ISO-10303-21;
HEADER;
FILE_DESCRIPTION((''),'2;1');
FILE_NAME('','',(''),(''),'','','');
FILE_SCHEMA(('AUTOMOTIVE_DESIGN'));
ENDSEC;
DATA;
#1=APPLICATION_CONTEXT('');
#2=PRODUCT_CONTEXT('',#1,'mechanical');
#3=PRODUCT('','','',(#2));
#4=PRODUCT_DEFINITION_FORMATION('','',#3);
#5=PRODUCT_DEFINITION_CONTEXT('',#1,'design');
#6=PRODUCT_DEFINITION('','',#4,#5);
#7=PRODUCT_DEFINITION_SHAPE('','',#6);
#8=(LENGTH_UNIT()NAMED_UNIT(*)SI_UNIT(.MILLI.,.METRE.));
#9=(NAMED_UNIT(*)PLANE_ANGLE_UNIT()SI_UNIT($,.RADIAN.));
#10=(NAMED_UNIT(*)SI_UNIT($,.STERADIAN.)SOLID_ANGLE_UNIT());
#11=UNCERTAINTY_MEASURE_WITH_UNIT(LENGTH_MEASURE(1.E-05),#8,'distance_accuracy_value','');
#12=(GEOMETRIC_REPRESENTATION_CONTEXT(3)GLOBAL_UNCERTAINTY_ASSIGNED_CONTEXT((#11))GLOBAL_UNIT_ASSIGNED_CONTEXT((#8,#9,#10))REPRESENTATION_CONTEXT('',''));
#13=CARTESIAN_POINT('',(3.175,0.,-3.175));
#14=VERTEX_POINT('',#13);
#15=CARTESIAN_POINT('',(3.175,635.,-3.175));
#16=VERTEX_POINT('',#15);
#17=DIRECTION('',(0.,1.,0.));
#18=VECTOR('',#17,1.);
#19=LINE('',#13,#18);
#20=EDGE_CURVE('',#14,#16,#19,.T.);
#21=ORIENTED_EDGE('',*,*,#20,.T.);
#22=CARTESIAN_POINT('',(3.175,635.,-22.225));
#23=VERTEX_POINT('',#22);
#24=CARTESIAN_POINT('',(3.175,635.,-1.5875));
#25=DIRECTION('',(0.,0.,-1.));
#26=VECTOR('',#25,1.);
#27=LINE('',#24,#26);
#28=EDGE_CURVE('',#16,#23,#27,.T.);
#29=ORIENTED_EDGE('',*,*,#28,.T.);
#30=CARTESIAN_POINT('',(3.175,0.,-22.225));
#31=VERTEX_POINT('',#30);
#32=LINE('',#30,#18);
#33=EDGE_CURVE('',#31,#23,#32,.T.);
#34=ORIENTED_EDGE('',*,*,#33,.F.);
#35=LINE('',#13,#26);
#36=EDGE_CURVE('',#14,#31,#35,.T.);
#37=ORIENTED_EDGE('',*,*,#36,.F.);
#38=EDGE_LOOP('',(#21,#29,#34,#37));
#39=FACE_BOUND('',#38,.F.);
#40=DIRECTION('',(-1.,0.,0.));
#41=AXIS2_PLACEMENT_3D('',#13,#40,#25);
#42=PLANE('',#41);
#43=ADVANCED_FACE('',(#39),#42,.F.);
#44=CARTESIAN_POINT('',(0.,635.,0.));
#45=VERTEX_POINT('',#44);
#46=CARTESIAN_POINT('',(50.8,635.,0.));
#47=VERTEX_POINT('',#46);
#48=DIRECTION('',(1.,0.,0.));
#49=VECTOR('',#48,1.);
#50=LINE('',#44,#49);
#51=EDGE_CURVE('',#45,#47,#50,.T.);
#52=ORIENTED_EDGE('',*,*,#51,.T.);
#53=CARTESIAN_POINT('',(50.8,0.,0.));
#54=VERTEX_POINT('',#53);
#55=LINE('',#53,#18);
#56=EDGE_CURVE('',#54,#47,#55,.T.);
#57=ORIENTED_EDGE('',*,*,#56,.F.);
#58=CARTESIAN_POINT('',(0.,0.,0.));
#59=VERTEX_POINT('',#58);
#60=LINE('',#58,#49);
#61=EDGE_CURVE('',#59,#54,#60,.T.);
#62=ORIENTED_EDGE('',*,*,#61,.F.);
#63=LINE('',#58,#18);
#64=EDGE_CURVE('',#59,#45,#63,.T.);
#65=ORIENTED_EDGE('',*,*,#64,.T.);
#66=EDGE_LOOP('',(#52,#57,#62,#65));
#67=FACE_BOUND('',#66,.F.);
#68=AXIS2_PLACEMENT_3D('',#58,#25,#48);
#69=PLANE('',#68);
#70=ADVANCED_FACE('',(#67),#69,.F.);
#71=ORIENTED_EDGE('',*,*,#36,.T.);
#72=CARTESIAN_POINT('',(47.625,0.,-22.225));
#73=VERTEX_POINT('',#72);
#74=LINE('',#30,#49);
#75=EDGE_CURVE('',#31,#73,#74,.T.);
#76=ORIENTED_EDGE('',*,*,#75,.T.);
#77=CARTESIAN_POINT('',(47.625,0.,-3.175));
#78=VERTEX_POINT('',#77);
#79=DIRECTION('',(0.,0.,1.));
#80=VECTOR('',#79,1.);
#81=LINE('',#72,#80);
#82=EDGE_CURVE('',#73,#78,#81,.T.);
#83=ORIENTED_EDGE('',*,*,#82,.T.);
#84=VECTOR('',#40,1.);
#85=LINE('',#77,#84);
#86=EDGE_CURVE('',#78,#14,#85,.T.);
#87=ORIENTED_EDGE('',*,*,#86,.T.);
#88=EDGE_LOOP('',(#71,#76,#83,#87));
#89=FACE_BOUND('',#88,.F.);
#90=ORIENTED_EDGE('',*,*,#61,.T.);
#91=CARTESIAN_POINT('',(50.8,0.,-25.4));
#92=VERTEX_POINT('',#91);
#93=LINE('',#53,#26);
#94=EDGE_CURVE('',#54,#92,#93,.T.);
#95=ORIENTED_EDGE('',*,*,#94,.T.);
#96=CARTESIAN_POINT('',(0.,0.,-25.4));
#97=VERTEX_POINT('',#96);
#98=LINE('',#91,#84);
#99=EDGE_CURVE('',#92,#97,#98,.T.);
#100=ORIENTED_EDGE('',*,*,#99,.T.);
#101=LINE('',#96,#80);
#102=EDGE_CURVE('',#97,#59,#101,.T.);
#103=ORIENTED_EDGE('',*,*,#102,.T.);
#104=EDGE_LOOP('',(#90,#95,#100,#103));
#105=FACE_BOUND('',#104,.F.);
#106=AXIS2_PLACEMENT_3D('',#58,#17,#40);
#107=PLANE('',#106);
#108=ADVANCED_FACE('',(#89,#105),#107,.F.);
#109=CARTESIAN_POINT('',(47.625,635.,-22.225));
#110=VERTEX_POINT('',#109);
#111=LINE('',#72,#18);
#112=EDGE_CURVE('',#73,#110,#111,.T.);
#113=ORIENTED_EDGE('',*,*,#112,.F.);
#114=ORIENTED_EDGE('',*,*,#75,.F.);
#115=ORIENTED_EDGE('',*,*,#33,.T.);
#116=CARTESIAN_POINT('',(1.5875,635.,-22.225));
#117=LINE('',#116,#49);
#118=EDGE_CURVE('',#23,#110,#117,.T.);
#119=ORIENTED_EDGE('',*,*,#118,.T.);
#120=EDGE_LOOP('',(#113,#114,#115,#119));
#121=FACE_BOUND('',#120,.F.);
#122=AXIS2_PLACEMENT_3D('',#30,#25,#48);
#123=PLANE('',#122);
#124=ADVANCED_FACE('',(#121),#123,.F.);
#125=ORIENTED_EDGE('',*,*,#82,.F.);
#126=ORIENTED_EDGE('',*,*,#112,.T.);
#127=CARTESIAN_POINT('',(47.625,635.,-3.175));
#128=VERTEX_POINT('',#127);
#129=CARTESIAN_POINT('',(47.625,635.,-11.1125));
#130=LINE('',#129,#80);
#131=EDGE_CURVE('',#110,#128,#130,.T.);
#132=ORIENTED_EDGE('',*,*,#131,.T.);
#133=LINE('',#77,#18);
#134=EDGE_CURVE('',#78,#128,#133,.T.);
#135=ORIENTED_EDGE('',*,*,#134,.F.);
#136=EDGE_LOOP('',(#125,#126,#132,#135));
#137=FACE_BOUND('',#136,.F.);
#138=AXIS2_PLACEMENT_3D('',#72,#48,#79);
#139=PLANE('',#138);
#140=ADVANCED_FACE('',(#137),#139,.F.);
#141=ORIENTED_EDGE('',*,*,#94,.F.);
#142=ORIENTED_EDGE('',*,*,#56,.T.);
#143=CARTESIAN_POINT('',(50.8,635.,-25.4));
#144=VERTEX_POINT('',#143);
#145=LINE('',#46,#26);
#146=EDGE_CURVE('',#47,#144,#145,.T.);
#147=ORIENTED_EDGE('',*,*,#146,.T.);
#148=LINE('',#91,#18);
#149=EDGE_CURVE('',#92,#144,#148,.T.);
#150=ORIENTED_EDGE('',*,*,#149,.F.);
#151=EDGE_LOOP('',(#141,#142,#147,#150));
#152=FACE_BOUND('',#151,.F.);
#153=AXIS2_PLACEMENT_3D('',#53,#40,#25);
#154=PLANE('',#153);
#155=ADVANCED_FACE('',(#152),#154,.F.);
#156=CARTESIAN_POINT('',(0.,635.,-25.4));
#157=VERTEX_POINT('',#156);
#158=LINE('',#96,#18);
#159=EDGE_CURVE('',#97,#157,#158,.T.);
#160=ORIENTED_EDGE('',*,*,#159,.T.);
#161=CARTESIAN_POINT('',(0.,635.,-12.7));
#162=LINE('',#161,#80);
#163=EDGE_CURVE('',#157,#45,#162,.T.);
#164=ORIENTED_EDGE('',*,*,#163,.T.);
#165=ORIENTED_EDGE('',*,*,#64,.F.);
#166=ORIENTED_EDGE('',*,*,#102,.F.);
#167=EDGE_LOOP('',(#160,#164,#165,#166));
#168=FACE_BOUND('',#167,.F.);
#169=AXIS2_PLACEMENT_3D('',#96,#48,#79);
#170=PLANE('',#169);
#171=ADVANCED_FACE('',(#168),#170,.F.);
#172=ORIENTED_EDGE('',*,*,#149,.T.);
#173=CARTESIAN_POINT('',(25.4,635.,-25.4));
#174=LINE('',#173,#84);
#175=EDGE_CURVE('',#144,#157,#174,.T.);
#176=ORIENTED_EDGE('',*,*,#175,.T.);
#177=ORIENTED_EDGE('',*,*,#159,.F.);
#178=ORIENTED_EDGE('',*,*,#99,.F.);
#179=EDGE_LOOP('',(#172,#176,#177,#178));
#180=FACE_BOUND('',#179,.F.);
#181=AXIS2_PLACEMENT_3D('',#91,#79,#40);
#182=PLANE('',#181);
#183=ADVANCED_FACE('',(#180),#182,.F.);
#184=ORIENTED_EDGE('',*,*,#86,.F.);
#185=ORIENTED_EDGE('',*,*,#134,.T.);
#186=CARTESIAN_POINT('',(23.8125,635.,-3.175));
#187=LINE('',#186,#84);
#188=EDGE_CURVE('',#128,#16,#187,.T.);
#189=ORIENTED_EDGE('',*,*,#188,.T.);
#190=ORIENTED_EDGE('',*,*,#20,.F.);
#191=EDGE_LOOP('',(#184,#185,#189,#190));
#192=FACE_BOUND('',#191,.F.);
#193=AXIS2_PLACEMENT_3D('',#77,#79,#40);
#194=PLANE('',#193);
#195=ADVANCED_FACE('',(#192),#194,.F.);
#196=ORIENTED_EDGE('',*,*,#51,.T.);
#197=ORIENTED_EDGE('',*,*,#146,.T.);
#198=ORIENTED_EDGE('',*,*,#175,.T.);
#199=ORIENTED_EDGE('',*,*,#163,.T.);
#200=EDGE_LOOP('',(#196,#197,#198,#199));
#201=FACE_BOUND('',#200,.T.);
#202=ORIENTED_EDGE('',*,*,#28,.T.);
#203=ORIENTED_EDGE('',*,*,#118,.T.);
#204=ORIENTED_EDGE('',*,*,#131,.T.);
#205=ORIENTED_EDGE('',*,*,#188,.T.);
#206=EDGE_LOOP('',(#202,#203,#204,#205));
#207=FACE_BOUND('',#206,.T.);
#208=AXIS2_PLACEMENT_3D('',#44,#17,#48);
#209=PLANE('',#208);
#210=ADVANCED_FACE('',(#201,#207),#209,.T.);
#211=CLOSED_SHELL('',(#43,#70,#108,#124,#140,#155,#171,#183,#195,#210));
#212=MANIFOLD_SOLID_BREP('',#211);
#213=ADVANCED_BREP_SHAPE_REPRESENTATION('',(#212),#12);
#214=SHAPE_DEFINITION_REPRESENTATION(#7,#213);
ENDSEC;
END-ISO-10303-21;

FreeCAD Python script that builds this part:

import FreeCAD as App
import Part
import Sketcher
from FreeCAD import Vector
Q = App.Units.Quantity

doc = App.newDocument("Part")
body = doc.addObject("PartDesign::Body", "Body")

# Sketch on XZ plane
sketch1 = body.newObject("Sketcher::SketchObject", "Sketch")
sketch1.AttachmentSupport = (doc.getObject("XZ_Plane"), [""])
sketch1.MapMode = "FlatFace"
sketch1.addGeometry(Part.LineSegment(Vector(0, -25, 0), Vector(0, 0, 0)), False)
sketch1.addGeometry(Part.LineSegment(Vector(0, 0, 0), Vector(51, 0, 0)), False)
sketch1.addGeometry(Part.LineSegment(Vector(51, 0, 0), Vector(51, -25, 0)), False)
sketch1.addGeometry(Part.LineSegment(Vector(51, -25, 0), Vector(0, -25, 0)), False)
sketch1.addGeometry(Part.LineSegment(Vector(3, -3, 0), Vector(3, -22, 0)), False)
sketch1.addGeometry(Part.LineSegment(Vector(3, -22, 0), Vector(48, -22, 0)), False)
sketch1.addGeometry(Part.LineSegment(Vector(48, -22, 0), Vector(48, -3, 0)), False)
sketch1.addGeometry(Part.LineSegment(Vector(48, -3, 0), Vector(3, -3, 0)), False)
sketch1.addConstraint(Sketcher.Constraint("Coincident", 0, 2, 1, 1))
sketch1.addConstraint(Sketcher.Constraint("Coincident", 1, 2, 2, 1))
sketch1.addConstraint(Sketcher.Constraint("Coincident", 2, 2, 3, 1))
sketch1.addConstraint(Sketcher.Constraint("Coincident", 3, 2, 0, 1))
sketch1.addConstraint(Sketcher.Constraint("Coincident", 4, 2, 5, 1))
sketch1.addConstraint(Sketcher.Constraint("Coincident", 5, 2, 6, 1))
sketch1.addConstraint(Sketcher.Constraint("Coincident", 6, 2, 7, 1))
sketch1.addConstraint(Sketcher.Constraint("Coincident", 7, 2, 4, 1))
sketch1.addConstraint(Sketcher.Constraint("Vertical", 0))
sketch1.addConstraint(Sketcher.Constraint("Horizontal", 1))
sketch1.addConstraint(Sketcher.Constraint("Vertical", 2))
sketch1.addConstraint(Sketcher.Constraint("Horizontal", 3))
sketch1.addConstraint(Sketcher.Constraint("Vertical", 4))
sketch1.addConstraint(Sketcher.Constraint("Horizontal", 5))
sketch1.addConstraint(Sketcher.Constraint("Vertical", 6))
sketch1.addConstraint(Sketcher.Constraint("Horizontal", 7))
sketch1.addConstraint(Sketcher.Constraint("Coincident", 0, 2, -1, 1))
sketch1.addConstraint(Sketcher.Constraint("DistanceX", 1, 1, 1, 2, Q("2 in")))
sketch1.addConstraint(Sketcher.Constraint("DistanceY", 0, 1, 0, 2, Q("1 in")))
sketch1.addConstraint(Sketcher.Constraint("DistanceX", -1, 1, 4, 2, Q("0.125 in")))
sketch1.addConstraint(Sketcher.Constraint("DistanceY", 6, 2, -1, 1, Q("0.125 in")))
sketch1.addConstraint(Sketcher.Constraint("DistanceY", 3, 2, 4, 2, Q("0.125 in")))
sketch1.addConstraint(Sketcher.Constraint("DistanceX", 5, 2, 2, 2, Q("0.125 in")))
pad1 = body.newObject("PartDesign::Pad", "Pad")
pad1.Profile = sketch1
pad1.Length = Q("29 in")
pad1.Reversed = True

# Sketch on XZ plane
sketch2 = body.newObject("Sketcher::SketchObject", "Sketch001")
sketch2.AttachmentSupport = (doc.getObject("XZ_Plane"), [""])
sketch2.MapMode = "FlatFace"
sketch2.AttachmentOffset = App.Placement(Vector(0, 0, -29 * 25.4), App.Rotation())
sketch2.addGeometry(Part.LineSegment(Vector(107, -46, 0), Vector(-33, -46, 0)), False)
sketch2.addGeometry(Part.LineSegment(Vector(-33, -46, 0), Vector(-33, 27, 0)), False)
sketch2.addGeometry(Part.LineSegment(Vector(-33, 27, 0), Vector(107, 27, 0)), False)
sketch2.addGeometry(Part.LineSegment(Vector(107, 27, 0), Vector(107, -46, 0)), False)
sketch2.addConstraint(Sketcher.Constraint("Coincident", 0, 2, 1, 1))
sketch2.addConstraint(Sketcher.Constraint("Coincident", 1, 2, 2, 1))
sketch2.addConstraint(Sketcher.Constraint("Coincident", 2, 2, 3, 1))
sketch2.addConstraint(Sketcher.Constraint("Coincident", 3, 2, 0, 1))
sketch2.addConstraint(Sketcher.Constraint("Horizontal", 0))
sketch2.addConstraint(Sketcher.Constraint("Vertical", 1))
sketch2.addConstraint(Sketcher.Constraint("Horizontal", 2))
sketch2.addConstraint(Sketcher.Constraint("Vertical", 3))
sketch2.addConstraint(Sketcher.Constraint("DistanceX", 0, 2, 0, 1, Q("5.5125 in")))
sketch2.addConstraint(Sketcher.Constraint("DistanceY", 1, 1, 1, 2, 73.14))
sketch2.addConstraint(Sketcher.Constraint("DistanceY", -1, 1, 1, 2, Q("1.0567 in")))
sketch2.addConstraint(Sketcher.Constraint("DistanceX", 0, 2, -1, 1, 32.6558))
pocket1 = body.newObject("PartDesign::Pocket", "Pocket")
pocket1.Profile = sketch2
pocket1.Length = Q("4 in")
pocket1.Reversed = True

doc.recompute()
